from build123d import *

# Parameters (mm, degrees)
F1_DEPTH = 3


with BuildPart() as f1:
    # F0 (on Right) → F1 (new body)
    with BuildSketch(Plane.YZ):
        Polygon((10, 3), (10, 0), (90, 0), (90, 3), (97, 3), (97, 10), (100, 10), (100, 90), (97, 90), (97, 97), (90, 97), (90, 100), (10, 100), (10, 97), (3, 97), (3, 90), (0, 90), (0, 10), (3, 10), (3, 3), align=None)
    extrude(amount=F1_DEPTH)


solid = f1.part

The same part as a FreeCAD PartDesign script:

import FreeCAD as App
import Part
import Sketcher
from FreeCAD import Vector


def add_polygon(sketch, points):
    """Adds a closed chain of lines whose ends are joined by coincident constraints."""
    first, n = sketch.GeometryCount, len(points)
    for a, b in zip(points, points[1:] + points[:1]):
        sketch.addGeometry(Part.LineSegment(App.Vector(*a, 0), App.Vector(*b, 0)), False)
    for i in range(n):
        sketch.addConstraint(Sketcher.Constraint("Coincident", first + i, 2, first + (i + 1) % n, 1))

doc = App.newDocument("Part")
params = doc.addObject("Spreadsheet::Sheet", "Params")
for row, (alias, value) in enumerate([
    ("sketch1_width", "80 mm"),
    ("sketch1_width2", "7 mm"),
    ("sketch1_width3", "3 mm"),
    ("pad1_length", "3 mm"),
], start=1):
    params.set(f"A{row}", alias)
    params.set(f"B{row}", "=" + value)
    params.setAlias(f"B{row}", alias)

body = doc.addObject("PartDesign::Body", "Body")

# Sketch on YZ plane
sketch1 = body.newObject("Sketcher::SketchObject", "Sketch")
sketch1.AttachmentSupport = (doc.getObject("YZ_Plane"), [""])
sketch1.MapMode = "FlatFace"
add_polygon(sketch1, [(10, 3), (10, 0), (90, 0), (90, 3), (97, 3), (97, 10), (100, 10), (100, 90), (97, 90), (97, 97), (90, 97), (90, 100), (10, 100), (10, 97), (3, 97), (3, 90), (0, 90), (0, 10), (3, 10), (3, 3)])  # lines 0-19
sketch1.addConstraint([
    Sketcher.Constraint("Vertical", 0),
    Sketcher.Constraint("Horizontal", 1),
    Sketcher.Constraint("Vertical", 2),
    Sketcher.Constraint("Horizontal", 3),
    Sketcher.Constraint("Vertical", 4),
    Sketcher.Constraint("Horizontal", 5),
    Sketcher.Constraint("Vertical", 6),
    Sketcher.Constraint("Horizontal", 7),
    Sketcher.Constraint("Vertical", 8),
    Sketcher.Constraint("Horizontal", 9),
    Sketcher.Constraint("Vertical", 10),
    Sketcher.Constraint("Horizontal", 11),
    Sketcher.Constraint("Vertical", 12),
    Sketcher.Constraint("Horizontal", 13),
    Sketcher.Constraint("Vertical", 14),
    Sketcher.Constraint("Horizontal", 15),
    Sketcher.Constraint("Vertical", 16),
    Sketcher.Constraint("Horizontal", 17),
    Sketcher.Constraint("Vertical", 18),
    Sketcher.Constraint("Horizontal", 19),
    Sketcher.Constraint("PointOnObject", 0, 2, -1),
    Sketcher.Constraint("PointOnObject", 15, 2, -2),
    Sketcher.Constraint("Horizontal", 9, 2, 12, 2),
    Sketcher.Constraint("Horizontal", 7, 2, 14, 2),
    Sketcher.Constraint("Horizontal", 5, 2, 16, 2),
    Sketcher.Constraint("Horizontal", 3, 2, 18, 2),
    Sketcher.Constraint("Vertical", 4, 2, 7, 2),
    Sketcher.Constraint("Vertical", 2, 2, 9, 2),
    Sketcher.Constraint("Vertical", 0, 2, 11, 2),
    Sketcher.Constraint("Vertical", 14, 2, 17, 2),
    Sketcher.Constraint("Equal", 9, 13),
    Sketcher.Constraint("Equal", 7, 15),
    Sketcher.Constraint("Equal", 17, 0),
    Sketcher.Constraint("Equal", 19, 4),
    Sketcher.Constraint("Equal", 11, 6),
    Sketcher.Constraint("Equal", 4, 8),
    Sketcher.Constraint("Equal", 2, 10),
    Sketcher.Constraint("DistanceX", 1, 1, 1, 2, 80.0),
    Sketcher.Constraint("DistanceX", 3, 1, 3, 2, 7.0),
    Sketcher.Constraint("DistanceX", 5, 1, 5, 2, 3.0),
])
sketch1.setExpression("Constraints[57]", "Params.sketch1_width")
sketch1.setExpression("Constraints[58]", "Params.sketch1_width2")
sketch1.setExpression("Constraints[59]", "Params.sketch1_width3")
pad1 = body.newObject("PartDesign::Pad", "Pad")
pad1.Profile = sketch1
pad1.setExpression("Length", "Params.pad1_length")

doc.recompute()
